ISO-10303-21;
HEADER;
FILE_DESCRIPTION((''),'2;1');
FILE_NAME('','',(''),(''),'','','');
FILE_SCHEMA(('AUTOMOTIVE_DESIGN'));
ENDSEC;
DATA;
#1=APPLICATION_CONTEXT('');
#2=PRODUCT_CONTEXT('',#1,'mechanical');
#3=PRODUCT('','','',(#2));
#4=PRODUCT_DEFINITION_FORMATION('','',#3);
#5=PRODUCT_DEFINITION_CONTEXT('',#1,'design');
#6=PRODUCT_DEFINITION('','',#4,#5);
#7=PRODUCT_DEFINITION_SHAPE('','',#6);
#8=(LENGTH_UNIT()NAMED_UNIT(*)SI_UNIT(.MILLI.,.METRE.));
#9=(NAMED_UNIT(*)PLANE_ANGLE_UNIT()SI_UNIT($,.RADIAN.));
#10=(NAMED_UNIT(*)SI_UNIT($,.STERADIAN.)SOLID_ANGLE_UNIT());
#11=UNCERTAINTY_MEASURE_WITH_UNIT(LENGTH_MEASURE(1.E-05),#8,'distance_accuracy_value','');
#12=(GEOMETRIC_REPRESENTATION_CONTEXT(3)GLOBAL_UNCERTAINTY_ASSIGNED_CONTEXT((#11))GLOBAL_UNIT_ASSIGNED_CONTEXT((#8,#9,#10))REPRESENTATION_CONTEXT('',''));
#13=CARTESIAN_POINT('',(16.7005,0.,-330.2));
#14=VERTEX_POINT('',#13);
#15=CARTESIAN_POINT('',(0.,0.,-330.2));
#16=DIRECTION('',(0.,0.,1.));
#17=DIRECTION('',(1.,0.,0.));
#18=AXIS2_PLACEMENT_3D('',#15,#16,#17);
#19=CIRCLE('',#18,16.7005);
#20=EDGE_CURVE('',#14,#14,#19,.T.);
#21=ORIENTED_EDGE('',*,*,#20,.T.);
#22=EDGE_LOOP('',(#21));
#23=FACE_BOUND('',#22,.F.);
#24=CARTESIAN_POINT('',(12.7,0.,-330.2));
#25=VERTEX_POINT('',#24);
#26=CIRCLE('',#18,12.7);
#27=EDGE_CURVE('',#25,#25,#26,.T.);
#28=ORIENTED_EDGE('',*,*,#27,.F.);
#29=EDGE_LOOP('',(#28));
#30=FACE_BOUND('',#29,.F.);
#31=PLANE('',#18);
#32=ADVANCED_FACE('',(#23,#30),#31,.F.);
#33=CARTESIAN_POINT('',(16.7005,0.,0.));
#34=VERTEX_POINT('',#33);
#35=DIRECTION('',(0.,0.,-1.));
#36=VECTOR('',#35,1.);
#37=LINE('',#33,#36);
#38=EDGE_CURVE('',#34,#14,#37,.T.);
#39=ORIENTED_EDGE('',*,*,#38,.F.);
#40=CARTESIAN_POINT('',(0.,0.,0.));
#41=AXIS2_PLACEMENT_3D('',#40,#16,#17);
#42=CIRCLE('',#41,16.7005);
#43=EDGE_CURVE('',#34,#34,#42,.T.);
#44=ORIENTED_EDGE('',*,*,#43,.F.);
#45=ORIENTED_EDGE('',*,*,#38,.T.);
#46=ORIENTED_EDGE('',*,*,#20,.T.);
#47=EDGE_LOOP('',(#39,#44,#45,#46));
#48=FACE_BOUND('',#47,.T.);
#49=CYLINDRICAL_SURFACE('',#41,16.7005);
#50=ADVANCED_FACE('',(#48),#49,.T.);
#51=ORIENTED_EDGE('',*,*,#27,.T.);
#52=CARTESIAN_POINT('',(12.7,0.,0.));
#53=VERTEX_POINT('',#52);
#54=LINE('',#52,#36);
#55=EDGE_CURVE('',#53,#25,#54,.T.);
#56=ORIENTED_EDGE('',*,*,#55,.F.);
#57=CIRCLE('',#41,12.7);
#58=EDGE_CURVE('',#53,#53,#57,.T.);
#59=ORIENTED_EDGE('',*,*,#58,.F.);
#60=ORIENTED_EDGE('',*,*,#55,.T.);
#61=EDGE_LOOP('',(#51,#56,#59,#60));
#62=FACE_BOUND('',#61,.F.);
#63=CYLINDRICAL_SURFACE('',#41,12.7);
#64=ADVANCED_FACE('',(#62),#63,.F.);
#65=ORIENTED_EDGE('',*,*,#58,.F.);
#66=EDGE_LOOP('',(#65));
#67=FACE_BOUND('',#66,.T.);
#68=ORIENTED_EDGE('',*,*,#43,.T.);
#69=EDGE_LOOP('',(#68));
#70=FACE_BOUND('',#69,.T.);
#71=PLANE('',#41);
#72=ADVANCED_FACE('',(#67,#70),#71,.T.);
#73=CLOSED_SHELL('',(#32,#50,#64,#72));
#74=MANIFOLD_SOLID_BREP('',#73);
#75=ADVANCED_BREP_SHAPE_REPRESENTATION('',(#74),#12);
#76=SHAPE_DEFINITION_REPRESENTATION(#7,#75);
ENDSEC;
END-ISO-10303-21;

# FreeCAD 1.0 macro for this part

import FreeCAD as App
import Part
import Sketcher
from FreeCAD import Vector
Q = App.Units.Quantity

doc = App.newDocument("Part")
body = doc.addObject("PartDesign::Body", "Body")

sketch1 = doc.addObject("Sketcher::SketchObject", "Sketch")
body.addObject(sketch1)
sketch1.AttachmentSupport = (doc.XY_Plane, [""])
sketch1.MapMode = "FlatFace"
sketch1.addGeometry([
    Part.Circle(Vector(0, 0, 0), Vector(0, 0, 1), 17),
    Part.Circle(Vector(0, 0, 0), Vector(0, 0, 1), 13),
], False)
sketch1.addConstraint([
    Sketcher.Constraint("Coincident", 0, 3, -1, 1),
    Sketcher.Constraint("Coincident", 1, 3, -1, 1),
    Sketcher.Constraint("Diameter", 1, Q("1 in")),
    Sketcher.Constraint("Diameter", 0, Q("1.315 in")),
])
pad1 = doc.addObject("PartDesign::Pad", "Pad")
body.addObject(pad1)
pad1.Profile = sketch1
pad1.Length = Q("13 in")
pad1.Reversed = True

doc.recompute()
